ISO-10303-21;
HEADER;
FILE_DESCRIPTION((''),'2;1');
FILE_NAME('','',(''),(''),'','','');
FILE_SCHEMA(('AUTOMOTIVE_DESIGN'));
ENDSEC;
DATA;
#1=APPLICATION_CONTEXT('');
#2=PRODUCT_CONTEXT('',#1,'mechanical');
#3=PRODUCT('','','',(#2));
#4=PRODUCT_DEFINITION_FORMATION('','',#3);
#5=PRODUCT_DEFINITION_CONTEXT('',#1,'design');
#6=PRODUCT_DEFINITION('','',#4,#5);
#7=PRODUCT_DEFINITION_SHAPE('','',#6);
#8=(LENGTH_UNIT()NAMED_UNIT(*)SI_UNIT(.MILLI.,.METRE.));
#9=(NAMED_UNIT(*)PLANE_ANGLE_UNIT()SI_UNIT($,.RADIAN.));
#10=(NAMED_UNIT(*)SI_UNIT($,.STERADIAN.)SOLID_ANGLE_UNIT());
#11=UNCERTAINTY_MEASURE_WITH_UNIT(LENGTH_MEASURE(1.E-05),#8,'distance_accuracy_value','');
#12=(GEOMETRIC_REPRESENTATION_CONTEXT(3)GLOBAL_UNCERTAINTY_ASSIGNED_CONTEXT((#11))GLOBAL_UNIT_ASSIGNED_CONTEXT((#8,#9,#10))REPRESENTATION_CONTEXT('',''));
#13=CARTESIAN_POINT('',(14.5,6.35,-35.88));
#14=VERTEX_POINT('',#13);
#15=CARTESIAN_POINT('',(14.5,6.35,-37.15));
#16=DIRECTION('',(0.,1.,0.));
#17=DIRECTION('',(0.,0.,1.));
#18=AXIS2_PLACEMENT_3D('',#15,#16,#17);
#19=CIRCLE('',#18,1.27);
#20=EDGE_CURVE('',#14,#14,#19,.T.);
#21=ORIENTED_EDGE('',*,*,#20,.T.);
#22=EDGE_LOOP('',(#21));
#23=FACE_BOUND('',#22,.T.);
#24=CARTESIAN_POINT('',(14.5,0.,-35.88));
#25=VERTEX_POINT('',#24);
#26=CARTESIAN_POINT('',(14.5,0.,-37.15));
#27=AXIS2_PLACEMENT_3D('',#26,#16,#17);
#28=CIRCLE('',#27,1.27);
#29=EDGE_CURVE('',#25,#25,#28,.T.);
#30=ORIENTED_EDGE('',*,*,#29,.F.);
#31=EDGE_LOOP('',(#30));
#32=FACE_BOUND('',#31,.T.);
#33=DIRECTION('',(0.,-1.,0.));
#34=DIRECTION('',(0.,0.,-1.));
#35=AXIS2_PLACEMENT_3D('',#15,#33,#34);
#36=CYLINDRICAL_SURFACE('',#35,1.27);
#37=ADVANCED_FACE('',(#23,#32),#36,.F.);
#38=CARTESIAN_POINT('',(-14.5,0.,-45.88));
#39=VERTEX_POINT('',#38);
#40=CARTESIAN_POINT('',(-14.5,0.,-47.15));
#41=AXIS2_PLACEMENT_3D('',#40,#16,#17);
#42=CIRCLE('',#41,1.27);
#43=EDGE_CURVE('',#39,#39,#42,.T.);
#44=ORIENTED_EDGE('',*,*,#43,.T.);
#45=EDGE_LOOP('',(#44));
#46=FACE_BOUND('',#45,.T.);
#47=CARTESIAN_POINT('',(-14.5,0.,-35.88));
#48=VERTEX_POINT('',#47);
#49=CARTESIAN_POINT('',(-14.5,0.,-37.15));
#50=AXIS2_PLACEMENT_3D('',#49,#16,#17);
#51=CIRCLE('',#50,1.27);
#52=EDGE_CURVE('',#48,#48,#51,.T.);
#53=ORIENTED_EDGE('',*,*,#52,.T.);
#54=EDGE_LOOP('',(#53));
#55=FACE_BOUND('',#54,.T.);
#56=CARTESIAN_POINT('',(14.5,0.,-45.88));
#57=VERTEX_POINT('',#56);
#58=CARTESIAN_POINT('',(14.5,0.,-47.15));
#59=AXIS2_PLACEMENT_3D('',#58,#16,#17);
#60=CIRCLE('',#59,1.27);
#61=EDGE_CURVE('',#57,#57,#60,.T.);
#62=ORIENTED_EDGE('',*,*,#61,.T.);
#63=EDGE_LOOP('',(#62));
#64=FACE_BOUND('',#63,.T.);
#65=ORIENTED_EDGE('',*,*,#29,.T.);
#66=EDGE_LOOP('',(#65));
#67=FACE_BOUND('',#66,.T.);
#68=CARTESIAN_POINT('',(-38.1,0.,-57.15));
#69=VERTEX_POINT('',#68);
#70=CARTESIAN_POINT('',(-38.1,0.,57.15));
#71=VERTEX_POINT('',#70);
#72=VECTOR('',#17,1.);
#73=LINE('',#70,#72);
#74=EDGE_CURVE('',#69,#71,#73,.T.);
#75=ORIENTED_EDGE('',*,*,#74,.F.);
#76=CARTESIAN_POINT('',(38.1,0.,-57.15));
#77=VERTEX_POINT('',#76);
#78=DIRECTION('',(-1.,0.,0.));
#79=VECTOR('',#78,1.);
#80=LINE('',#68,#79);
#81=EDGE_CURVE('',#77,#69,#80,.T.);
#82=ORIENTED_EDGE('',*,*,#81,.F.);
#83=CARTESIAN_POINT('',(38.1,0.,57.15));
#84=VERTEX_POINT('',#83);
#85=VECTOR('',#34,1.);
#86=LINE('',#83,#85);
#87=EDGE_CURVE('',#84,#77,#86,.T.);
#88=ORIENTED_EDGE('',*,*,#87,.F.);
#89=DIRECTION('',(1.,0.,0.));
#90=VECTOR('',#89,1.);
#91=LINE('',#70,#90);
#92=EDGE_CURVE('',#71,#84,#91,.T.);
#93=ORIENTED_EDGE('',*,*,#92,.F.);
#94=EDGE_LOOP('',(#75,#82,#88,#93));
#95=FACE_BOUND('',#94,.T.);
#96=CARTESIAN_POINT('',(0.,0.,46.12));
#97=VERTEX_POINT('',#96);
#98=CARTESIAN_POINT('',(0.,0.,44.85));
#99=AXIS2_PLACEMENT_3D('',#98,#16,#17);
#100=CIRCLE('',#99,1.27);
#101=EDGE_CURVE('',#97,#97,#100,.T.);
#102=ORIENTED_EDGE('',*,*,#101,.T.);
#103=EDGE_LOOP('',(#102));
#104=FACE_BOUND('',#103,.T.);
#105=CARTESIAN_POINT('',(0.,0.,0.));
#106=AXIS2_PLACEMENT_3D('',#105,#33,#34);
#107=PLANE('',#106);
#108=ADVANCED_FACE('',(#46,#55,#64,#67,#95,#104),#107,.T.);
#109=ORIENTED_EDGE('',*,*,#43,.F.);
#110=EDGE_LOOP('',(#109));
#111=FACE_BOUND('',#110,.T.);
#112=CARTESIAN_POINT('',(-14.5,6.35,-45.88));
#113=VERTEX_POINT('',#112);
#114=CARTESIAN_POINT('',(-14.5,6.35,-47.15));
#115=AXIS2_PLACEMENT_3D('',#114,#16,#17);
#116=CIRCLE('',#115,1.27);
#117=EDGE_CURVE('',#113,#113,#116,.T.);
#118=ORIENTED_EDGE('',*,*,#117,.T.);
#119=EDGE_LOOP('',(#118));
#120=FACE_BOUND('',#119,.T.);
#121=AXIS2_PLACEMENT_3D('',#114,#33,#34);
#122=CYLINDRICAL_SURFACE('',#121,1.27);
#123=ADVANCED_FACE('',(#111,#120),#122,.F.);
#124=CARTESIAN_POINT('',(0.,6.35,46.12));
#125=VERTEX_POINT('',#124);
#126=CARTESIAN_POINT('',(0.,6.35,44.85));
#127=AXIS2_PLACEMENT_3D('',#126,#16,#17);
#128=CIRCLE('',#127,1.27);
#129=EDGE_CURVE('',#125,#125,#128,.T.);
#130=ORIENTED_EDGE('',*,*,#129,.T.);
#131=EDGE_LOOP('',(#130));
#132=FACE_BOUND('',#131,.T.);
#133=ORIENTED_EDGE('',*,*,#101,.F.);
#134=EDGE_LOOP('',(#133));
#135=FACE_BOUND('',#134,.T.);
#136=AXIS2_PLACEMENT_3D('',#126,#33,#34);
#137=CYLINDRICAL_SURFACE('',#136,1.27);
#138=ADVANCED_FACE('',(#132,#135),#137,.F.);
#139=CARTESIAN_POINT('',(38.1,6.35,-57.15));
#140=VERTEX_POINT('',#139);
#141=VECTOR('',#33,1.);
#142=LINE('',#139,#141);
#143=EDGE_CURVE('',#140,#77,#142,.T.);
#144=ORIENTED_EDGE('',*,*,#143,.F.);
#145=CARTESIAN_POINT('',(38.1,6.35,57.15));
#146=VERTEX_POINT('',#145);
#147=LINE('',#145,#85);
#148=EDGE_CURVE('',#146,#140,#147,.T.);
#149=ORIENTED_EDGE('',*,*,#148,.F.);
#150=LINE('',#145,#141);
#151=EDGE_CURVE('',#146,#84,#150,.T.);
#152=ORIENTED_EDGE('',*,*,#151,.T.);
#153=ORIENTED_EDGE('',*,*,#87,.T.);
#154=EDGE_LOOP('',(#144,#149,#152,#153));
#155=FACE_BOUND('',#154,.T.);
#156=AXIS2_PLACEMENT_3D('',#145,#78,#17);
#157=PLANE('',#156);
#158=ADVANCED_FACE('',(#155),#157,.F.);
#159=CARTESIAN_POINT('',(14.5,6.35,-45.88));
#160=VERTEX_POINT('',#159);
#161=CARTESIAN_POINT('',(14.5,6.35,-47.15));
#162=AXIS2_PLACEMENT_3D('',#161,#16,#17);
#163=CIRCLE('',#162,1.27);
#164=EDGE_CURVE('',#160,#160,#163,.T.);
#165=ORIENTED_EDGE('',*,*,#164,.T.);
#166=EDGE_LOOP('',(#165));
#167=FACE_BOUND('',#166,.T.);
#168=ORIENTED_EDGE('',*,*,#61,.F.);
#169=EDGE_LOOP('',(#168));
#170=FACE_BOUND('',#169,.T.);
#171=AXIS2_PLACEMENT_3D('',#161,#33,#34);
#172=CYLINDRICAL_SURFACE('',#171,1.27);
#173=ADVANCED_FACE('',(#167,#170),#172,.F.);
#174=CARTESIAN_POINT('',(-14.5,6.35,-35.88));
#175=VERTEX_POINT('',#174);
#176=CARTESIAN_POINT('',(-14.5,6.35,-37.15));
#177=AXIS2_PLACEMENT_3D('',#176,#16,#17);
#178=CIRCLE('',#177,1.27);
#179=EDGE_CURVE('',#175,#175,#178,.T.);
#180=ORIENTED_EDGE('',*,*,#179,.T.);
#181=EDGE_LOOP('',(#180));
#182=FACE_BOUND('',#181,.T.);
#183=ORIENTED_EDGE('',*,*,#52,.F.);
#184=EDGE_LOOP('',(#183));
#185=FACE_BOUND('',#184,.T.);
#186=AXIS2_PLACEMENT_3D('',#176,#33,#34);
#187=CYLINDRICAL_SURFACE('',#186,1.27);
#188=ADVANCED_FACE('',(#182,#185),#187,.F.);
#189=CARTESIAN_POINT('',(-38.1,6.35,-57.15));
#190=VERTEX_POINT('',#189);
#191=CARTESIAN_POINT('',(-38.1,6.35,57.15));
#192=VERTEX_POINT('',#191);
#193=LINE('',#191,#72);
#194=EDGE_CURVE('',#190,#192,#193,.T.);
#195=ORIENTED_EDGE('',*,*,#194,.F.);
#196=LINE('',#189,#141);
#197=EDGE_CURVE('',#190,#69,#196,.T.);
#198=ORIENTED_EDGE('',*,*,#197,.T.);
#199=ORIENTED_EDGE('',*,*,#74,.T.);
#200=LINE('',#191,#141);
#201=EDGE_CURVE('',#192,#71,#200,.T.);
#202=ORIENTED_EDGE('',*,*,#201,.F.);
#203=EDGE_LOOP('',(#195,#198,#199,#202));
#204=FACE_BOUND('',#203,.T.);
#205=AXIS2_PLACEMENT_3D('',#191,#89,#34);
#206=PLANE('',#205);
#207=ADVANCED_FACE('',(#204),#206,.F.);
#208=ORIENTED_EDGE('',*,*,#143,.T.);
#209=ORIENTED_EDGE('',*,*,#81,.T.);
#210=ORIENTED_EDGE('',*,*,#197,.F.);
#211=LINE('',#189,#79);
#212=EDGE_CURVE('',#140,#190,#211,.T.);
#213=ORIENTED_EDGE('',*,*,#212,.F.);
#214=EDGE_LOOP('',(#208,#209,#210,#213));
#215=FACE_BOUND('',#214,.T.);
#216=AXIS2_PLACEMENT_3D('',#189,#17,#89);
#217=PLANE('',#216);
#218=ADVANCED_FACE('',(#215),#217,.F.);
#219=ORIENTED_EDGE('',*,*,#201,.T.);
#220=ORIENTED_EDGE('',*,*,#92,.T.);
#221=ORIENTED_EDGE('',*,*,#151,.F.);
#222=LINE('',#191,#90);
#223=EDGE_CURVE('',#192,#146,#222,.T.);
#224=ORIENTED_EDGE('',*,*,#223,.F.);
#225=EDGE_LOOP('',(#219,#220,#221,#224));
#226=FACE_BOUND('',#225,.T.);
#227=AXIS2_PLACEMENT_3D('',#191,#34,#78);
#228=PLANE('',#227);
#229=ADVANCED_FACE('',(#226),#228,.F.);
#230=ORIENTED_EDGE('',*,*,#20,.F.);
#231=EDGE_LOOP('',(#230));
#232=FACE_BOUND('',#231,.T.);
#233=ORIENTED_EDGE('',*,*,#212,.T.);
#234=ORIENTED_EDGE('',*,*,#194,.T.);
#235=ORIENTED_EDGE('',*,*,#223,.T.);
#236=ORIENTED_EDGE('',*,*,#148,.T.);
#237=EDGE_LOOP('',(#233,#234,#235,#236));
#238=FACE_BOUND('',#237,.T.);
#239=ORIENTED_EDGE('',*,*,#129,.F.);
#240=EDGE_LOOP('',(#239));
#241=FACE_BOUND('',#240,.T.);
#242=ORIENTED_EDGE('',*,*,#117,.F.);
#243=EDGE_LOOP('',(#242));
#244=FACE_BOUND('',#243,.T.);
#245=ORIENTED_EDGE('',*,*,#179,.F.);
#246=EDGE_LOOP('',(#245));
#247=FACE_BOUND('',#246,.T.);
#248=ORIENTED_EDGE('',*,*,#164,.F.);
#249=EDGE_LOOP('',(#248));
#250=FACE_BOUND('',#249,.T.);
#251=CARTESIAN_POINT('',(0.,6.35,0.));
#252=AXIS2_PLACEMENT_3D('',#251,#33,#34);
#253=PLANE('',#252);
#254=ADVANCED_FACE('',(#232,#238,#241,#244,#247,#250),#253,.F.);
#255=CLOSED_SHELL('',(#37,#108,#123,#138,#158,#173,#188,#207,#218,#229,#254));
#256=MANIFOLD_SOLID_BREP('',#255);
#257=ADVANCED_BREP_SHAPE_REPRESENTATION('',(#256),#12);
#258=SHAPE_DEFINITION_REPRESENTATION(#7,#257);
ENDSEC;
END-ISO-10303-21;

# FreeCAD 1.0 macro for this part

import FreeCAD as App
import Part
import Sketcher
Q = App.Units.Quantity


def add_polygon(sketch, points):
    """Adds a closed chain of lines whose ends are joined by coincident constraints."""
    first, n = sketch.GeometryCount, len(points)
    for a, b in zip(points, points[1:] + points[:1]):
        sketch.addGeometry(Part.LineSegment(App.Vector(*a, 0), App.Vector(*b, 0)), False)
    for i in range(n):
        sketch.addConstraint(Sketcher.Constraint("Coincident", first + i, 2, first + (i + 1) % n, 1))

doc = App.newDocument("Part")
params = doc.addObject("Spreadsheet::Sheet", "Params")
for row, (alias, value) in enumerate([
    ("sketch1_diameter", "0.1 in"),
    ("sketch1_width", "3 in"),
    ("sketch1_height", "4.5 in"),
    ("pad1_length", "0.25 in"),
], start=1):
    params.set(f"A{row}", alias)
    params.set(f"B{row}", "=" + value)
    params.setAlias(f"B{row}", alias)

body = doc.addObject("PartDesign::Body", "Body")

# Sketch on XZ plane
sketch1 = body.newObject("Sketcher::SketchObject", "Sketch")
sketch1.AttachmentSupport = (doc.getObject("XZ_Plane"), [""])
sketch1.MapMode = "FlatFace"
add_polygon(sketch1, [(-38.1, -57.1), (-38.1, 57.1), (38.1, 57.1), (38.1, -57.1)])  # lines 0-3
sketch1.addGeometry(Part.Circle(App.Vector(0, 44.9, 0), App.Vector(0, 0, 1), 1.3), False)  # 4
sketch1.addGeometry(Part.Circle(App.Vector(-14.5, -37.1, 0), App.Vector(0, 0, 1), 1.3), False)  # 5
sketch1.addGeometry(Part.Circle(App.Vector(-14.5, -47.1, 0), App.Vector(0, 0, 1), 1.3), False)  # 6
sketch1.addGeometry(Part.Circle(App.Vector(14.5, -37.1, 0), App.Vector(0, 0, 1), 1.3), False)  # 7
sketch1.addGeometry(Part.Circle(App.Vector(14.5, -47.1, 0), App.Vector(0, 0, 1), 1.3), False)  # 8
sketch1.addConstraint([
    Sketcher.Constraint("Vertical", 0),
    Sketcher.Constraint("Horizontal", 1),
    Sketcher.Constraint("Vertical", 2),
    Sketcher.Constraint("Horizontal", 3),
    Sketcher.Constraint("Equal", 4, 5),
    Sketcher.Constraint("Equal", 5, 6),
    Sketcher.Constraint("Equal", 6, 7),
    Sketcher.Constraint("Equal", 7, 8),
    Sketcher.Constraint("Symmetric", 0, 2, 2, 2, -1, 1),
    Sketcher.Constraint("Symmetric", 5, 3, 7, 3, -2),
    Sketcher.Constraint("Symmetric", 6, 3, 8, 3, -2),
    Sketcher.Constraint("PointOnObject", 4, 3, -2),
    Sketcher.Constraint("Vertical", 5, 3, 6, 3),
    Sketcher.Constraint("Diameter", 4, Q("0.1 in")),
    Sketcher.Constraint("DistanceX", 1, 1, 1, 2, Q("3 in")),
    Sketcher.Constraint("DistanceY", 0, 1, 0, 2, Q("4.5 in")),
    Sketcher.Constraint("DistanceY", -1, 1, 4, 3, Q("44.85 mm")),
    Sketcher.Constraint("DistanceX", 5, 3, -1, 1, Q("14.5 mm")),
    Sketcher.Constraint("DistanceY", 5, 3, -1, 1, Q("37.15 mm")),
    Sketcher.Constraint("DistanceY", 6, 3, -1, 1, Q("47.15 mm")),
])
sketch1.setExpression("Constraints[17]", "Params.sketch1_diameter")
sketch1.setExpression("Constraints[18]", "Params.sketch1_width")
sketch1.setExpression("Constraints[19]", "Params.sketch1_height")
pad1 = body.newObject("PartDesign::Pad", "Pad")
pad1.Profile = sketch1
pad1.setExpression("Length", "Params.pad1_length")
pad1.Reversed = True

doc.recompute()
